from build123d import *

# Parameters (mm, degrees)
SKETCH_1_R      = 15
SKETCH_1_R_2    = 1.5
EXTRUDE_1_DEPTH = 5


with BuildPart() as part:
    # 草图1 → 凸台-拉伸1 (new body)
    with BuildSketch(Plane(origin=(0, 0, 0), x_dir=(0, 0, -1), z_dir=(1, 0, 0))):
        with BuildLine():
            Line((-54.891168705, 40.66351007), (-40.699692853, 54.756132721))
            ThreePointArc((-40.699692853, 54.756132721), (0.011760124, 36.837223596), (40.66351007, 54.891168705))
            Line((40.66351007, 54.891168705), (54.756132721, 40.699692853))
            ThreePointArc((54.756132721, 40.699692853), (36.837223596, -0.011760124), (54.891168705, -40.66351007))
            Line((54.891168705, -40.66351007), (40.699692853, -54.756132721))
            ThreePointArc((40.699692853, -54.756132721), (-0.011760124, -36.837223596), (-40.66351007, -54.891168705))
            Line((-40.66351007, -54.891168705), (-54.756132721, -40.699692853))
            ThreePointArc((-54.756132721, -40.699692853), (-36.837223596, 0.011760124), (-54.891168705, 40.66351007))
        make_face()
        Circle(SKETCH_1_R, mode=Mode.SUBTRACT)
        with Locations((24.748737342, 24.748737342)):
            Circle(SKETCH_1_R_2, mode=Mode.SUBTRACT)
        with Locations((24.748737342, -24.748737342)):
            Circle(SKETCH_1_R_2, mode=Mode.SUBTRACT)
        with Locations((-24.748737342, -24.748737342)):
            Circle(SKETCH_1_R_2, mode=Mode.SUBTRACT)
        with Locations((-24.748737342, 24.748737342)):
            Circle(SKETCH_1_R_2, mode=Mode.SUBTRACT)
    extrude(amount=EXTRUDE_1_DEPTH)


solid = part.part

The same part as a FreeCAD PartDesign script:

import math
import FreeCAD as App
import Part
import Sketcher
from FreeCAD import Vector
Q = App.Units.Quantity

doc = App.newDocument("Part")
body = doc.addObject("PartDesign::Body", "Body")

sketch1 = body.newObject("Sketcher::SketchObject", "Sketch")
sketch1.AttachmentSupport = (doc.getObject("YZ_Plane"), [""])
sketch1.MapMode = "FlatFace"
sketch1.addGeometry([
    Part.LineSegment(Vector(54.8, 40.7, 0), Vector(40.7, 54.9, 0)),
    Part.ArcOfCircle(Part.Circle(Vector(-0.1, 91.8, 0), Vector(0, 0, 1), 55), math.radians(-138), math.radians(-42)),
    Part.LineSegment(Vector(-40.7, 54.8, 0), Vector(-54.9, 40.7, 0)),
    Part.ArcOfCircle(Part.Circle(Vector(-91.8, -0.1, 0), Vector(0, 0, 1), 55), math.radians(-48), math.radians(48)),
    Part.LineSegment(Vector(-54.8, -40.7, 0), Vector(-40.7, -54.9, 0)),
    Part.ArcOfCircle(Part.Circle(Vector(0.1, -91.8, 0), Vector(0, 0, 1), 55), math.radians(42), math.radians(138)),
    Part.LineSegment(Vector(40.7, -54.8, 0), Vector(54.9, -40.7, 0)),
    Part.ArcOfCircle(Part.Circle(Vector(91.8, 0.1, 0), Vector(0, 0, 1), 55), math.radians(132), math.radians(228)),
    Part.Circle(Vector(-24.7, -24.7, 0), Vector(0, 0, 1), 1.5),
    Part.Circle(Vector(-24.7, 24.7, 0), Vector(0, 0, 1), 1.5),
    Part.Circle(Vector(24.7, -24.7, 0), Vector(0, 0, 1), 1.5),
    Part.Circle(Vector(0, 0, 0), Vector(0, 0, 1), 15),
    Part.Circle(Vector(24.7, 24.7, 0), Vector(0, 0, 1), 1.5),
], False)
sketch1.addConstraint([
    Sketcher.Constraint("Coincident", 0, 2, 1, 2),
    Sketcher.Constraint("Coincident", 1, 1, 2, 1),
    Sketcher.Constraint("Coincident", 2, 2, 3, 2),
    Sketcher.Constraint("Coincident", 3, 1, 4, 1),
    Sketcher.Constraint("Coincident", 4, 2, 5, 2),
    Sketcher.Constraint("Coincident", 5, 1, 6, 1),
    Sketcher.Constraint("Coincident", 6, 2, 7, 2),
    Sketcher.Constraint("Coincident", 7, 1, 0, 1),
    Sketcher.Constraint("Coincident", 11, 3, -1, 1),
    Sketcher.Constraint("Equal", 1, 3),
    Sketcher.Constraint("Equal", 3, 5),
    Sketcher.Constraint("Equal", 5, 7),
    Sketcher.Constraint("Equal", 8, 9),
    Sketcher.Constraint("Equal", 9, 10),
    Sketcher.Constraint("Equal", 10, 12),
    Sketcher.Constraint("Symmetric", 1, 3, 5, 3, -1, 1),
    Sketcher.Constraint("Symmetric", 3, 3, 7, 3, -1, 1),
    Sketcher.Constraint("Symmetric", 9, 3, 10, 3, -1, 1),
    Sketcher.Constraint("Symmetric", 8, 3, 12, 3, -1, 1),
    Sketcher.Constraint("Symmetric", 8, 3, 10, 3, -2),
    Sketcher.Constraint("Perpendicular", 0, 2),
    Sketcher.Constraint("Perpendicular", 2, 4),
    Sketcher.Constraint("Perpendicular", 4, 6),
    Sketcher.Constraint("Equal", 0, 2),
    Sketcher.Constraint("Equal", 2, 4),
    Sketcher.Constraint("Equal", 4, 6),
    Sketcher.Constraint("Diameter", 8, Q("3 mm")),
    Sketcher.Constraint("Diameter", 11, Q("30 mm")),
    Sketcher.Constraint("Radius", 1, Q("55 mm")),
    Sketcher.Constraint("Distance", 0, Q("20 mm")),
    Sketcher.Constraint("DistanceX", 1, 3, -1, 1, Q("0.079522 mm")),
    Sketcher.Constraint("DistanceY", 3, 3, -1, 1, Q("0.079522 mm")),
    Sketcher.Constraint("DistanceX", -1, 1, 0, 2, Q("40.66351 mm")),
    Sketcher.Constraint("DistanceY", -1, 1, 0, 2, Q("54.891169 mm")),
    Sketcher.Constraint("DistanceX", 2, 2, -1, 1, Q("54.891169 mm")),
    Sketcher.Constraint("DistanceX", 3, 3, 8, 3, Q("67.088411 mm")),
    Sketcher.Constraint("DistanceY", 5, 3, 8, 3, Q("67.088411 mm")),
])
pad1 = body.newObject("PartDesign::Pad", "Pad")
pad1.Profile = sketch1
pad1.Length = 5

doc.recompute()
